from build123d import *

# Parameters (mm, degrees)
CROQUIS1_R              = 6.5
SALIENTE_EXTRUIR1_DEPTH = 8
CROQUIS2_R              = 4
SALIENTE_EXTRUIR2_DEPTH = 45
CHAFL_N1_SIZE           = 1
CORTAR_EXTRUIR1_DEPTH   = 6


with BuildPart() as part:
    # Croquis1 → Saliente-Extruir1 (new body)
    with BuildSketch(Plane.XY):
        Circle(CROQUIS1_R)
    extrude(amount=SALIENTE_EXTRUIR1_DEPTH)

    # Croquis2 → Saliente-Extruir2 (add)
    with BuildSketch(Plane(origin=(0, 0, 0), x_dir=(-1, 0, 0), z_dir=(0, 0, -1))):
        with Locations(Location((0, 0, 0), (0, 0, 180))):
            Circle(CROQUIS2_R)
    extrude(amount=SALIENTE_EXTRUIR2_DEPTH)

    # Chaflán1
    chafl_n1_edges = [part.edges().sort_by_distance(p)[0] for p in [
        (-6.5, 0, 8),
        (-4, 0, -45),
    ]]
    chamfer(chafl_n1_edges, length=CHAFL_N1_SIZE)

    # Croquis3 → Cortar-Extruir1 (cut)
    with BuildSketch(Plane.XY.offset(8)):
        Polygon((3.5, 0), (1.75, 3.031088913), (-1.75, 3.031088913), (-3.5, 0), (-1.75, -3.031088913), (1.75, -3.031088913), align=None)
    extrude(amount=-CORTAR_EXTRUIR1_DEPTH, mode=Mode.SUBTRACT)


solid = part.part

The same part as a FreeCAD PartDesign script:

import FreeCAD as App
import Part
import Sketcher
from FreeCAD import Vector
Q = App.Units.Quantity


def edges_at(feature, points):
    """Names of the edges that pass closest to the given points."""
    edges = feature.Shape.Edges
    near = lambda p: min(range(len(edges)), key=lambda i: edges[i].distToShape(Part.Vertex(*p))[0])
    return sorted({f"Edge{near(p) + 1}" for p in points})

doc = App.newDocument("Part")
body = doc.addObject("PartDesign::Body", "Body")

# Sketch on XY plane
sketch1 = doc.addObject("Sketcher::SketchObject", "Sketch")
body.addObject(sketch1)
sketch1.AttachmentSupport = (doc.XY_Plane, [""])
sketch1.MapMode = "FlatFace"
sketch1.addGeometry(Part.Circle(Vector(0, 0, 0), Vector(0, 0, 1), 6), False)
sketch1.addConstraint(Sketcher.Constraint("Coincident", 0, 3, -1, 1))
sketch1.addConstraint(Sketcher.Constraint("Diameter", 0, Q("13 mm")))
pad1 = doc.addObject("PartDesign::Pad", "Pad")
body.addObject(pad1)
pad1.Profile = sketch1
pad1.Length = 8

# Sketch on XY plane
sketch2 = doc.addObject("Sketcher::SketchObject", "Sketch001")
body.addObject(sketch2)
sketch2.AttachmentSupport = (doc.XY_Plane, [""])
sketch2.MapMode = "FlatFace"
sketch2.addGeometry(Part.Circle(Vector(0, 0, 0), Vector(0, 0, 1), 4), False)
sketch2.addConstraint(Sketcher.Constraint("Coincident", 0, 3, -1, 1))
sketch2.addConstraint(Sketcher.Constraint("Diameter", 0, Q("8 mm")))
pad2 = doc.addObject("PartDesign::Pad", "Pad001")
body.addObject(pad2)
pad2.Profile = sketch2
pad2.Length = 45
pad2.Reversed = True
doc.recompute()

chamfer = doc.addObject("PartDesign::Chamfer", "Chamfer")
body.addObject(chamfer)
chamfer.Base = (pad2, edges_at(pad2, [(-6.5, 0, 8), (-4, 0, -45)]))
chamfer.Size = 1

# Sketch on XY plane
sketch3 = doc.addObject("Sketcher::SketchObject", "Sketch002")
body.addObject(sketch3)
sketch3.AttachmentSupport = (doc.XY_Plane, [""])
sketch3.MapMode = "FlatFace"
sketch3.AttachmentOffset = App.Placement(Vector(0, 0, 8), App.Rotation())
sketch3.addGeometry(Part.LineSegment(Vector(3.5, 0, 0), Vector(1.8, 3, 0)), False)
sketch3.addGeometry(Part.LineSegment(Vector(1.8, 3, 0), Vector(-1.8, 3, 0)), False)
sketch3.addGeometry(Part.LineSegment(Vector(-1.8, 3, 0), Vector(-3.5, 0, 0)), False)
sketch3.addGeometry(Part.LineSegment(Vector(-3.5, 0, 0), Vector(-1.8, -3, 0)), False)
sketch3.addGeometry(Part.LineSegment(Vector(-1.8, -3, 0), Vector(1.8, -3, 0)), False)
sketch3.addGeometry(Part.LineSegment(Vector(1.8, -3, 0), Vector(3.5, 0, 0)), False)
sketch3.addConstraint(Sketcher.Constraint("Coincident", 0, 2, 1, 1))
sketch3.addConstraint(Sketcher.Constraint("Coincident", 1, 2, 2, 1))
sketch3.addConstraint(Sketcher.Constraint("Coincident", 2, 2, 3, 1))
sketch3.addConstraint(Sketcher.Constraint("Coincident", 3, 2, 4, 1))
sketch3.addConstraint(Sketcher.Constraint("Coincident", 4, 2, 5, 1))
sketch3.addConstraint(Sketcher.Constraint("Coincident", 5, 2, 0, 1))
sketch3.addConstraint(Sketcher.Constraint("Horizontal", 1))
sketch3.addConstraint(Sketcher.Constraint("Horizontal", 4))
sketch3.addConstraint(Sketcher.Constraint("Symmetric", 0, 2, 3, 2, -1, 1))
sketch3.addConstraint(Sketcher.Constraint("Symmetric", 2, 2, 5, 2, -1, 1))
sketch3.addConstraint(Sketcher.Constraint("PointOnObject", 2, 2, -1))
sketch3.addConstraint(Sketcher.Constraint("Parallel", 2, 5))
sketch3.addConstraint(Sketcher.Constraint("Vertical", 1, 2, 3, 2))
sketch3.addConstraint(Sketcher.Constraint("Angle", 0, Q("120 deg")))
sketch3.addConstraint(Sketcher.Constraint("DistanceX", 1, 2, 1, 1, Q("3.5 mm")))
sketch3.addConstraint(Sketcher.Constraint("DistanceX", 2, 2, 5, 2, Q("7 mm")))
pocket1 = doc.addObject("PartDesign::Pocket", "Pocket")
body.addObject(pocket1)
pocket1.Profile = sketch3
pocket1.Length = 6

doc.recompute()
